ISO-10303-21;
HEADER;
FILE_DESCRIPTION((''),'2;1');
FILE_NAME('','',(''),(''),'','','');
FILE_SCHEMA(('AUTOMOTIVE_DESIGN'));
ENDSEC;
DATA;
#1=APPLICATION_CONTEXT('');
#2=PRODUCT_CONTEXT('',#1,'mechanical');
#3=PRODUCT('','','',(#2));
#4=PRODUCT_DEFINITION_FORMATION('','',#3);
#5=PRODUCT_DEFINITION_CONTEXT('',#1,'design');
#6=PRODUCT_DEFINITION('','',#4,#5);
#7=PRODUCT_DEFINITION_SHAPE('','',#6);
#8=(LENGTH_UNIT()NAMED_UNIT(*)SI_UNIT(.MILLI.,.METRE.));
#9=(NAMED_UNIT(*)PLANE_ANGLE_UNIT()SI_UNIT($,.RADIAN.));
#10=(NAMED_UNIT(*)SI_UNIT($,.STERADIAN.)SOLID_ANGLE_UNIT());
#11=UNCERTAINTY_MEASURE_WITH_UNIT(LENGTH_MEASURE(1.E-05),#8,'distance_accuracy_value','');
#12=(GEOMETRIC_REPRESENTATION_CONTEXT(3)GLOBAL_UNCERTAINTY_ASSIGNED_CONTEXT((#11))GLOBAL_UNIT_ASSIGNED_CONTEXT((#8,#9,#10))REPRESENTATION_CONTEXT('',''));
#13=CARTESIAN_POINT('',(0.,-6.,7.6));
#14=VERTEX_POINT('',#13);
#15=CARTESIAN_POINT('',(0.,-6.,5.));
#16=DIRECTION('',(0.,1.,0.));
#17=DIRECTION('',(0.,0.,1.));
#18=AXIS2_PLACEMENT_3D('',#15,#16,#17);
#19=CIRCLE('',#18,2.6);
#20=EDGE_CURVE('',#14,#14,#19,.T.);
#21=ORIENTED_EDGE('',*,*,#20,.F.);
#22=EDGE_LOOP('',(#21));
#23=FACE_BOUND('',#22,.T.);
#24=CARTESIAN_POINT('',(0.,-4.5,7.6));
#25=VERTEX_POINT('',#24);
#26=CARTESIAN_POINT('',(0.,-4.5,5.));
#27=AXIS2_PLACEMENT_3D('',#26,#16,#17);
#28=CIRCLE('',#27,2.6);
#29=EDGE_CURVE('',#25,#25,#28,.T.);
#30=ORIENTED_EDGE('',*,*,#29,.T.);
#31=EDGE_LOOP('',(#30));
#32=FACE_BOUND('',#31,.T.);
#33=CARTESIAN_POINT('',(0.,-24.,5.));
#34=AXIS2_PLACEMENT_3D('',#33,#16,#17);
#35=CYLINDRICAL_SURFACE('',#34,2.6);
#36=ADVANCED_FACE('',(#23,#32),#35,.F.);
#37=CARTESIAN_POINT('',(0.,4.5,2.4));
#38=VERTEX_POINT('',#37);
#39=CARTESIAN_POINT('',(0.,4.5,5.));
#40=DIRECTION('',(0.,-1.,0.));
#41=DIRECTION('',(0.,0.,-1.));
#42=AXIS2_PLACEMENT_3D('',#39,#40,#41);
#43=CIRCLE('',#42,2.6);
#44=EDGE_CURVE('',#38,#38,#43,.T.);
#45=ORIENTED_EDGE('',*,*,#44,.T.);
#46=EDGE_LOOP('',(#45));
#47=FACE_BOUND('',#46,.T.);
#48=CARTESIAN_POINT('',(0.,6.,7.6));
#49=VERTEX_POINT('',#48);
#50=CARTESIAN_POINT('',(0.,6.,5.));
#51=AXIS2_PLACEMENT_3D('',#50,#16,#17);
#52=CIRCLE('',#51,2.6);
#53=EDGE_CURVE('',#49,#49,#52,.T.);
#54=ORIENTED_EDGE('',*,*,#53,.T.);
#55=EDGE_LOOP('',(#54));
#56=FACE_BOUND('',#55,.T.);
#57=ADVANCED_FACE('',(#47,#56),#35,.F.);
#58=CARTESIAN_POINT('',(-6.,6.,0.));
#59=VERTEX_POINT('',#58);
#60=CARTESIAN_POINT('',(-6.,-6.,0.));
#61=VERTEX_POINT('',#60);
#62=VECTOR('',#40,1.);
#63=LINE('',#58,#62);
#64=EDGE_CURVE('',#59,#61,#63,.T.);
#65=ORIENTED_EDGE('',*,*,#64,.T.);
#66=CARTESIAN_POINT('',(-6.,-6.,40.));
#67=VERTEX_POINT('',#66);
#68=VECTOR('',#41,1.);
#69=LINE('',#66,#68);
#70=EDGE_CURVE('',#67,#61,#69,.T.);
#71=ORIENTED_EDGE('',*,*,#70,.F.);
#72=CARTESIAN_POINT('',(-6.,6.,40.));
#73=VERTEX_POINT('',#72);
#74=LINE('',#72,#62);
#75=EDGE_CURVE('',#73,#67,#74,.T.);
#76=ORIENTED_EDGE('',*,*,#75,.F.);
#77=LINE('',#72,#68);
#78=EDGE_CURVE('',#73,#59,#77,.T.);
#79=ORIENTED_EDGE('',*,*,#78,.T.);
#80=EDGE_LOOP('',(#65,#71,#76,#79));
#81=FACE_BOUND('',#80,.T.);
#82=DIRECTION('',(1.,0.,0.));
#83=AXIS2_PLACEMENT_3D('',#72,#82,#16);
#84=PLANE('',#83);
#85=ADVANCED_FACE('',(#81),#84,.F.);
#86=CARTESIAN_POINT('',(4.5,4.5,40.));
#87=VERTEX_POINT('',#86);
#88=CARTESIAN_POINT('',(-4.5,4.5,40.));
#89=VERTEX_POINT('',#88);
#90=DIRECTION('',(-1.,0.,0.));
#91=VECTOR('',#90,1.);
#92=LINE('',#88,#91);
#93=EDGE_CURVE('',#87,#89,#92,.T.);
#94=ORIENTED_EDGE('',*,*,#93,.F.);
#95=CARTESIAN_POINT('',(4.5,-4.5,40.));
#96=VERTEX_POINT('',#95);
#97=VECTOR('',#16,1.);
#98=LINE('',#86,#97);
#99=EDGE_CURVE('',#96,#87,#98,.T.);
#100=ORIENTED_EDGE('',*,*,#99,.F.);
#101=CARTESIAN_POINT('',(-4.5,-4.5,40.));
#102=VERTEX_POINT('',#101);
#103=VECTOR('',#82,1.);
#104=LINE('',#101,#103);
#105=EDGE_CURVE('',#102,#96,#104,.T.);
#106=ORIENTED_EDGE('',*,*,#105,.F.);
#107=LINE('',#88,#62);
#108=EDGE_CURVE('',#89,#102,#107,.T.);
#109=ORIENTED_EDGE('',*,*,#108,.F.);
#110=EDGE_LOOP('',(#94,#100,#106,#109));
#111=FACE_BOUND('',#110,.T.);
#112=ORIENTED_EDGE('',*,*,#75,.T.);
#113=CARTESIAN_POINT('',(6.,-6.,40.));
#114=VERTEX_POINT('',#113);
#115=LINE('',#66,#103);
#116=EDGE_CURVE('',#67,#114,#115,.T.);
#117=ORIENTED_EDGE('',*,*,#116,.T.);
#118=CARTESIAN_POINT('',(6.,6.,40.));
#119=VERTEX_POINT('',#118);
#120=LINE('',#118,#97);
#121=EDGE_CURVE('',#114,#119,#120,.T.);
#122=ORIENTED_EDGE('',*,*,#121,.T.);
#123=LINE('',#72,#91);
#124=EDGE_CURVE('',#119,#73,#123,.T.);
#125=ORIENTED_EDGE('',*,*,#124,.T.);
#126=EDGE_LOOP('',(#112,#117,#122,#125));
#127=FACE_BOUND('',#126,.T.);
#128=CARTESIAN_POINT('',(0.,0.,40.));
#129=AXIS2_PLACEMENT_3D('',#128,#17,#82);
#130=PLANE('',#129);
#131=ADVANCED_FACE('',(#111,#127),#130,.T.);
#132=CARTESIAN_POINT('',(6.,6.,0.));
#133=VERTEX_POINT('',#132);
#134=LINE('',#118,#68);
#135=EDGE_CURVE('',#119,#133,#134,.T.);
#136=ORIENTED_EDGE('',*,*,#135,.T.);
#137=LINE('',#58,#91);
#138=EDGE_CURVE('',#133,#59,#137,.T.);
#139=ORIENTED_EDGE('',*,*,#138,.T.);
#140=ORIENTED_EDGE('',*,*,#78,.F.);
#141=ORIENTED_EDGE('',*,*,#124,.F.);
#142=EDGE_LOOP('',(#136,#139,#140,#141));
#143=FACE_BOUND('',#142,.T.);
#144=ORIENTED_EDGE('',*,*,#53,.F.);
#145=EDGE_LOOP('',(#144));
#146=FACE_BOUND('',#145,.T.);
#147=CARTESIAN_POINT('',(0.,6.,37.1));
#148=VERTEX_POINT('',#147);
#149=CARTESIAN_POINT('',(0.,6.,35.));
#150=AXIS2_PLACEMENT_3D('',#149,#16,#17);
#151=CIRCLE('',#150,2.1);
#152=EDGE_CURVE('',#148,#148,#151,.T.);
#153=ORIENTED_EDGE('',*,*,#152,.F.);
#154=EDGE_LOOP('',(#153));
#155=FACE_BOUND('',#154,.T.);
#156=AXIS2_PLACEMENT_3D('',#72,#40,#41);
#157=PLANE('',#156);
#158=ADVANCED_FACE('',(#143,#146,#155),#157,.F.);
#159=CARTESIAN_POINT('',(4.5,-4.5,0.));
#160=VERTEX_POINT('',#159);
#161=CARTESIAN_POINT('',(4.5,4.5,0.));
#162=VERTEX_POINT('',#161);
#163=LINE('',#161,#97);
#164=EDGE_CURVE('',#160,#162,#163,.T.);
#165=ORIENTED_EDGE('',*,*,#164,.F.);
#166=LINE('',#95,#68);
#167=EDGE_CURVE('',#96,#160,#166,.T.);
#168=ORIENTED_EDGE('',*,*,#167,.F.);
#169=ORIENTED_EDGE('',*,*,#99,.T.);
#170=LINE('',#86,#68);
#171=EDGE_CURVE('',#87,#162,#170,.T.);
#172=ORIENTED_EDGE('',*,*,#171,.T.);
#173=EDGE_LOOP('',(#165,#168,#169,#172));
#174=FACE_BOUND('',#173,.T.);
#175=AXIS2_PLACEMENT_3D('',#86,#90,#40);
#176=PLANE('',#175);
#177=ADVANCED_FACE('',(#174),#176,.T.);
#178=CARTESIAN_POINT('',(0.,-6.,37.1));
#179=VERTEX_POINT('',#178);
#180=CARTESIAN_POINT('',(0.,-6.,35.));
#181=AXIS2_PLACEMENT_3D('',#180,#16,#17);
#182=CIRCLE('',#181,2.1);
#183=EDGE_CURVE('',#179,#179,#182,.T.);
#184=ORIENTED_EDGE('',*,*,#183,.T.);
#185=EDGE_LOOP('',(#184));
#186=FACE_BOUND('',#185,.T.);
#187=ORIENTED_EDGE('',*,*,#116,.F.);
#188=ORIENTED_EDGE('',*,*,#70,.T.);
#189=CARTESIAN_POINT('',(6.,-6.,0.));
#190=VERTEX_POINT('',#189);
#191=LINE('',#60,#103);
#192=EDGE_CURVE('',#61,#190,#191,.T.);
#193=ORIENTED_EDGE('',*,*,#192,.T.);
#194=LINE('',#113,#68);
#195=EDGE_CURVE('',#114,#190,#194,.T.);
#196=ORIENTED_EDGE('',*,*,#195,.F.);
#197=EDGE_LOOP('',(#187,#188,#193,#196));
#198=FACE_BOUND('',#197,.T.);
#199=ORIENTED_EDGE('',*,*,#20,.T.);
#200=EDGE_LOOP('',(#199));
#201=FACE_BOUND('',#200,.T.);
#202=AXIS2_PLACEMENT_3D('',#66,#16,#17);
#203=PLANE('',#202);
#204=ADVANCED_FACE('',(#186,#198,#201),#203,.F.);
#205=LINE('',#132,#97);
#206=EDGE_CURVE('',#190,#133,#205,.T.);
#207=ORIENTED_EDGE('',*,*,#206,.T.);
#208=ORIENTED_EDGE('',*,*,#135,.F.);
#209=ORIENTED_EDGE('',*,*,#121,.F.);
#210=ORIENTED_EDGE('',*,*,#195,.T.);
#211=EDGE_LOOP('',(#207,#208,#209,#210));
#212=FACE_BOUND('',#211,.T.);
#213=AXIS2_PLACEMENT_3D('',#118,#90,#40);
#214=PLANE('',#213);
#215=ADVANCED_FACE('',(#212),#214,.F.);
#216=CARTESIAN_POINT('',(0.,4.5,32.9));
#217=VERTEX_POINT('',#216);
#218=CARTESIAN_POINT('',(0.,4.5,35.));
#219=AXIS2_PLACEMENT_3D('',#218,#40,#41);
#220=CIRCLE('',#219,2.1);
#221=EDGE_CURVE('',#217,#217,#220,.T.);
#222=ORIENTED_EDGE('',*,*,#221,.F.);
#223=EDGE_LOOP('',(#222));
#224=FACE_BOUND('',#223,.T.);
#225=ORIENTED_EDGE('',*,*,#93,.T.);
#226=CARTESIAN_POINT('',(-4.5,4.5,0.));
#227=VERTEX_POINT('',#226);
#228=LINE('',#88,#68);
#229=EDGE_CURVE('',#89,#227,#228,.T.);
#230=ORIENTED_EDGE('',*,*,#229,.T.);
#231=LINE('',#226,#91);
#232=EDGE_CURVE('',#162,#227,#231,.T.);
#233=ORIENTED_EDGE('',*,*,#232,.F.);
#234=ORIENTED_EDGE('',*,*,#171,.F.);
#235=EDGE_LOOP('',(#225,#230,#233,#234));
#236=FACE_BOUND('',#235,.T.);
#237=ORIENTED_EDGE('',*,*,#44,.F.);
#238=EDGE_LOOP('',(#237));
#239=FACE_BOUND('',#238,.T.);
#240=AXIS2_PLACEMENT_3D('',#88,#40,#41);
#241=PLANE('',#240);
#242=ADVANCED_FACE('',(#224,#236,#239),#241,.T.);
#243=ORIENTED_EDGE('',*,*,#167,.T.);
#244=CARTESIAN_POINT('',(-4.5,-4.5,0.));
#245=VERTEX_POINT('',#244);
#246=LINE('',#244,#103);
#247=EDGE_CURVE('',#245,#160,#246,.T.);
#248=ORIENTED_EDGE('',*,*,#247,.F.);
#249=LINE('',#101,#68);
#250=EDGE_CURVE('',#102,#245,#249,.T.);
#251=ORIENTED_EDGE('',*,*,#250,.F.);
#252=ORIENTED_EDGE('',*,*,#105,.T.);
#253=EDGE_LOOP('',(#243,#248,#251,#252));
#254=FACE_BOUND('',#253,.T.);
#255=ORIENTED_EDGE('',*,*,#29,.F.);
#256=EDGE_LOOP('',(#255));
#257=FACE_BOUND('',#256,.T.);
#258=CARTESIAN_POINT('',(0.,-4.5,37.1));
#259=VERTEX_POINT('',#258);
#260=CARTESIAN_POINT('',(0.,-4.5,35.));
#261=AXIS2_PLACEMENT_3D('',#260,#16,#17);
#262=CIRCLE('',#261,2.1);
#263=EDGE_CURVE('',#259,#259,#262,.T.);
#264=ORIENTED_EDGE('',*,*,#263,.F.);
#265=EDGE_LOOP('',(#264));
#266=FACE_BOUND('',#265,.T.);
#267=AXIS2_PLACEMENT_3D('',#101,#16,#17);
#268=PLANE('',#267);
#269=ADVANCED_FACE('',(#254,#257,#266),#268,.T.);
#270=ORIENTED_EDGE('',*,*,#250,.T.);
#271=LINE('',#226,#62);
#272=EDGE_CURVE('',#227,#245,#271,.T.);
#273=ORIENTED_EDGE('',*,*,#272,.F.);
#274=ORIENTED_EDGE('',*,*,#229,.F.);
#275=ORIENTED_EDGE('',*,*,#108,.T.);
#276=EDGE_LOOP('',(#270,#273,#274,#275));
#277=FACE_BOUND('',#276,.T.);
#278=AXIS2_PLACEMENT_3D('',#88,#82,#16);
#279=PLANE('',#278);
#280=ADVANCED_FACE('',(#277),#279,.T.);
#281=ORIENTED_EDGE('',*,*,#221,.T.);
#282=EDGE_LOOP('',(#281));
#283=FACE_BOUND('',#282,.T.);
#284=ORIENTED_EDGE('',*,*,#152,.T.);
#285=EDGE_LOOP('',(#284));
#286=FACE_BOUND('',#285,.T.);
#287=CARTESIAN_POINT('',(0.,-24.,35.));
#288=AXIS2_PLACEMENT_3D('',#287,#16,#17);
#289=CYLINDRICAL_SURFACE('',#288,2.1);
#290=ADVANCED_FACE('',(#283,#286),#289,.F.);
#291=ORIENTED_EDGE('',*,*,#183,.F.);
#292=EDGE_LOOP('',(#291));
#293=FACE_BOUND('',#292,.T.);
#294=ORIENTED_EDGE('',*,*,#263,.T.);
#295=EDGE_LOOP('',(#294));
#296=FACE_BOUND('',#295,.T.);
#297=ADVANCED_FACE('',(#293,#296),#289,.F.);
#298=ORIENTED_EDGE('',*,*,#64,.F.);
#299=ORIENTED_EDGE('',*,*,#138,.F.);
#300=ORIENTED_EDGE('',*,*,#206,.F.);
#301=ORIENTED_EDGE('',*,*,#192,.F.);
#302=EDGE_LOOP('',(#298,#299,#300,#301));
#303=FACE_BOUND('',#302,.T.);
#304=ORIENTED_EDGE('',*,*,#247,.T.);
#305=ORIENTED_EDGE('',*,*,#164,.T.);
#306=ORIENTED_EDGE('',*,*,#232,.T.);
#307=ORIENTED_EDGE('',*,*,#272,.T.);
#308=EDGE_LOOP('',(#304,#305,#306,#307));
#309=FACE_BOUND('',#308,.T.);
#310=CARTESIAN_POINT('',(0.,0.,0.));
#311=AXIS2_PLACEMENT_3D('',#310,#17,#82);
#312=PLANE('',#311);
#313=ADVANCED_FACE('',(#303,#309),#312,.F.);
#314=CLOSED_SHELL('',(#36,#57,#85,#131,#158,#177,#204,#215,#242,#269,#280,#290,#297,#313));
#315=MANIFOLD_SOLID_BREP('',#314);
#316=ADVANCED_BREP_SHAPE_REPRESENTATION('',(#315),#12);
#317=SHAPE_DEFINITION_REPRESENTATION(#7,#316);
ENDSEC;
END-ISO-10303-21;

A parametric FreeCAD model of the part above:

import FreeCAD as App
import Part
import Sketcher

doc = App.newDocument("Part")
body = doc.addObject("PartDesign::Body", "Body")

sketch1 = doc.addObject("Sketcher::SketchObject", "Sketch")
body.addObject(sketch1)
sketch1.AttachmentSupport = (doc.XY_Plane, [""])
sketch1.MapMode = "FlatFace"
sketch1.addGeometry([
    Part.LineSegment(App.Vector(-6, 6, 0), App.Vector(-6, -6, 0)),
    Part.LineSegment(App.Vector(-6, -6, 0), App.Vector(6, -6, 0)),
    Part.LineSegment(App.Vector(6, -6, 0), App.Vector(6, 6, 0)),
    Part.LineSegment(App.Vector(6, 6, 0), App.Vector(-6, 6, 0)),
    Part.LineSegment(App.Vector(4, -4, 0), App.Vector(-4, -4, 0)),
    Part.LineSegment(App.Vector(-4, -4, 0), App.Vector(-4, 4, 0)),
    Part.LineSegment(App.Vector(-4, 4, 0), App.Vector(4, 4, 0)),
    Part.LineSegment(App.Vector(4, 4, 0), App.Vector(4, -4, 0)),
], False)
sketch1.addConstraint([
    Sketcher.Constraint("Coincident", 0, 2, 1, 1),
    Sketcher.Constraint("Coincident", 1, 2, 2, 1),
    Sketcher.Constraint("Coincident", 2, 2, 3, 1),
    Sketcher.Constraint("Coincident", 3, 2, 0, 1),
    Sketcher.Constraint("Coincident", 4, 2, 5, 1),
    Sketcher.Constraint("Coincident", 5, 2, 6, 1),
    Sketcher.Constraint("Coincident", 6, 2, 7, 1),
    Sketcher.Constraint("Coincident", 7, 2, 4, 1),
    Sketcher.Constraint("Vertical", 0),
    Sketcher.Constraint("Horizontal", 1),
    Sketcher.Constraint("Vertical", 2),
    Sketcher.Constraint("Horizontal", 3),
    Sketcher.Constraint("Horizontal", 4),
    Sketcher.Constraint("Vertical", 5),
    Sketcher.Constraint("Horizontal", 6),
    Sketcher.Constraint("Vertical", 7),
    Sketcher.Constraint("Symmetric", 0, 2, 2, 2, -1, 1),
    Sketcher.Constraint("Symmetric", 4, 2, 6, 2, -1, 1),
    Sketcher.Constraint("Equal", 3, 0),
    Sketcher.Constraint("Equal", 6, 5),
    Sketcher.Constraint("DistanceX", 1, 1, 1, 2, 12.0),
    Sketcher.Constraint("DistanceX", 4, 2, 4, 1, 9.0),
])
pad1 = doc.addObject("PartDesign::Pad", "Pad")
body.addObject(pad1)
pad1.Profile = sketch1
pad1.Length = 40

sketch2 = doc.addObject("Sketcher::SketchObject", "Sketch001")
body.addObject(sketch2)
sketch2.AttachmentSupport = (doc.XZ_Plane, [""])
sketch2.MapMode = "FlatFace"
sketch2.AttachmentOffset = App.Placement(App.Vector(0, 0, -6), App.Rotation())
sketch2.addGeometry([
    Part.Circle(App.Vector(0, 5, 0), App.Vector(0, 0, 1), 2.6),
    Part.Circle(App.Vector(0, 35, 0), App.Vector(0, 0, 1), 2.1),
], False)
sketch2.addConstraint([
    Sketcher.Constraint("PointOnObject", 0, 3, -2),
    Sketcher.Constraint("PointOnObject", 1, 3, -2),
    Sketcher.Constraint("Diameter", 0, 5.2),
    Sketcher.Constraint("Diameter", 1, 4.2),
    Sketcher.Constraint("DistanceY", -1, 1, 0, 3, 5.0),
    Sketcher.Constraint("DistanceY", -1, 1, 1, 3, 35.0),
])
pocket1 = doc.addObject("PartDesign::Pocket", "Pocket")
body.addObject(pocket1)
pocket1.Profile = sketch2
pocket1.Length = 30
pocket1.Reversed = True

doc.recompute()
